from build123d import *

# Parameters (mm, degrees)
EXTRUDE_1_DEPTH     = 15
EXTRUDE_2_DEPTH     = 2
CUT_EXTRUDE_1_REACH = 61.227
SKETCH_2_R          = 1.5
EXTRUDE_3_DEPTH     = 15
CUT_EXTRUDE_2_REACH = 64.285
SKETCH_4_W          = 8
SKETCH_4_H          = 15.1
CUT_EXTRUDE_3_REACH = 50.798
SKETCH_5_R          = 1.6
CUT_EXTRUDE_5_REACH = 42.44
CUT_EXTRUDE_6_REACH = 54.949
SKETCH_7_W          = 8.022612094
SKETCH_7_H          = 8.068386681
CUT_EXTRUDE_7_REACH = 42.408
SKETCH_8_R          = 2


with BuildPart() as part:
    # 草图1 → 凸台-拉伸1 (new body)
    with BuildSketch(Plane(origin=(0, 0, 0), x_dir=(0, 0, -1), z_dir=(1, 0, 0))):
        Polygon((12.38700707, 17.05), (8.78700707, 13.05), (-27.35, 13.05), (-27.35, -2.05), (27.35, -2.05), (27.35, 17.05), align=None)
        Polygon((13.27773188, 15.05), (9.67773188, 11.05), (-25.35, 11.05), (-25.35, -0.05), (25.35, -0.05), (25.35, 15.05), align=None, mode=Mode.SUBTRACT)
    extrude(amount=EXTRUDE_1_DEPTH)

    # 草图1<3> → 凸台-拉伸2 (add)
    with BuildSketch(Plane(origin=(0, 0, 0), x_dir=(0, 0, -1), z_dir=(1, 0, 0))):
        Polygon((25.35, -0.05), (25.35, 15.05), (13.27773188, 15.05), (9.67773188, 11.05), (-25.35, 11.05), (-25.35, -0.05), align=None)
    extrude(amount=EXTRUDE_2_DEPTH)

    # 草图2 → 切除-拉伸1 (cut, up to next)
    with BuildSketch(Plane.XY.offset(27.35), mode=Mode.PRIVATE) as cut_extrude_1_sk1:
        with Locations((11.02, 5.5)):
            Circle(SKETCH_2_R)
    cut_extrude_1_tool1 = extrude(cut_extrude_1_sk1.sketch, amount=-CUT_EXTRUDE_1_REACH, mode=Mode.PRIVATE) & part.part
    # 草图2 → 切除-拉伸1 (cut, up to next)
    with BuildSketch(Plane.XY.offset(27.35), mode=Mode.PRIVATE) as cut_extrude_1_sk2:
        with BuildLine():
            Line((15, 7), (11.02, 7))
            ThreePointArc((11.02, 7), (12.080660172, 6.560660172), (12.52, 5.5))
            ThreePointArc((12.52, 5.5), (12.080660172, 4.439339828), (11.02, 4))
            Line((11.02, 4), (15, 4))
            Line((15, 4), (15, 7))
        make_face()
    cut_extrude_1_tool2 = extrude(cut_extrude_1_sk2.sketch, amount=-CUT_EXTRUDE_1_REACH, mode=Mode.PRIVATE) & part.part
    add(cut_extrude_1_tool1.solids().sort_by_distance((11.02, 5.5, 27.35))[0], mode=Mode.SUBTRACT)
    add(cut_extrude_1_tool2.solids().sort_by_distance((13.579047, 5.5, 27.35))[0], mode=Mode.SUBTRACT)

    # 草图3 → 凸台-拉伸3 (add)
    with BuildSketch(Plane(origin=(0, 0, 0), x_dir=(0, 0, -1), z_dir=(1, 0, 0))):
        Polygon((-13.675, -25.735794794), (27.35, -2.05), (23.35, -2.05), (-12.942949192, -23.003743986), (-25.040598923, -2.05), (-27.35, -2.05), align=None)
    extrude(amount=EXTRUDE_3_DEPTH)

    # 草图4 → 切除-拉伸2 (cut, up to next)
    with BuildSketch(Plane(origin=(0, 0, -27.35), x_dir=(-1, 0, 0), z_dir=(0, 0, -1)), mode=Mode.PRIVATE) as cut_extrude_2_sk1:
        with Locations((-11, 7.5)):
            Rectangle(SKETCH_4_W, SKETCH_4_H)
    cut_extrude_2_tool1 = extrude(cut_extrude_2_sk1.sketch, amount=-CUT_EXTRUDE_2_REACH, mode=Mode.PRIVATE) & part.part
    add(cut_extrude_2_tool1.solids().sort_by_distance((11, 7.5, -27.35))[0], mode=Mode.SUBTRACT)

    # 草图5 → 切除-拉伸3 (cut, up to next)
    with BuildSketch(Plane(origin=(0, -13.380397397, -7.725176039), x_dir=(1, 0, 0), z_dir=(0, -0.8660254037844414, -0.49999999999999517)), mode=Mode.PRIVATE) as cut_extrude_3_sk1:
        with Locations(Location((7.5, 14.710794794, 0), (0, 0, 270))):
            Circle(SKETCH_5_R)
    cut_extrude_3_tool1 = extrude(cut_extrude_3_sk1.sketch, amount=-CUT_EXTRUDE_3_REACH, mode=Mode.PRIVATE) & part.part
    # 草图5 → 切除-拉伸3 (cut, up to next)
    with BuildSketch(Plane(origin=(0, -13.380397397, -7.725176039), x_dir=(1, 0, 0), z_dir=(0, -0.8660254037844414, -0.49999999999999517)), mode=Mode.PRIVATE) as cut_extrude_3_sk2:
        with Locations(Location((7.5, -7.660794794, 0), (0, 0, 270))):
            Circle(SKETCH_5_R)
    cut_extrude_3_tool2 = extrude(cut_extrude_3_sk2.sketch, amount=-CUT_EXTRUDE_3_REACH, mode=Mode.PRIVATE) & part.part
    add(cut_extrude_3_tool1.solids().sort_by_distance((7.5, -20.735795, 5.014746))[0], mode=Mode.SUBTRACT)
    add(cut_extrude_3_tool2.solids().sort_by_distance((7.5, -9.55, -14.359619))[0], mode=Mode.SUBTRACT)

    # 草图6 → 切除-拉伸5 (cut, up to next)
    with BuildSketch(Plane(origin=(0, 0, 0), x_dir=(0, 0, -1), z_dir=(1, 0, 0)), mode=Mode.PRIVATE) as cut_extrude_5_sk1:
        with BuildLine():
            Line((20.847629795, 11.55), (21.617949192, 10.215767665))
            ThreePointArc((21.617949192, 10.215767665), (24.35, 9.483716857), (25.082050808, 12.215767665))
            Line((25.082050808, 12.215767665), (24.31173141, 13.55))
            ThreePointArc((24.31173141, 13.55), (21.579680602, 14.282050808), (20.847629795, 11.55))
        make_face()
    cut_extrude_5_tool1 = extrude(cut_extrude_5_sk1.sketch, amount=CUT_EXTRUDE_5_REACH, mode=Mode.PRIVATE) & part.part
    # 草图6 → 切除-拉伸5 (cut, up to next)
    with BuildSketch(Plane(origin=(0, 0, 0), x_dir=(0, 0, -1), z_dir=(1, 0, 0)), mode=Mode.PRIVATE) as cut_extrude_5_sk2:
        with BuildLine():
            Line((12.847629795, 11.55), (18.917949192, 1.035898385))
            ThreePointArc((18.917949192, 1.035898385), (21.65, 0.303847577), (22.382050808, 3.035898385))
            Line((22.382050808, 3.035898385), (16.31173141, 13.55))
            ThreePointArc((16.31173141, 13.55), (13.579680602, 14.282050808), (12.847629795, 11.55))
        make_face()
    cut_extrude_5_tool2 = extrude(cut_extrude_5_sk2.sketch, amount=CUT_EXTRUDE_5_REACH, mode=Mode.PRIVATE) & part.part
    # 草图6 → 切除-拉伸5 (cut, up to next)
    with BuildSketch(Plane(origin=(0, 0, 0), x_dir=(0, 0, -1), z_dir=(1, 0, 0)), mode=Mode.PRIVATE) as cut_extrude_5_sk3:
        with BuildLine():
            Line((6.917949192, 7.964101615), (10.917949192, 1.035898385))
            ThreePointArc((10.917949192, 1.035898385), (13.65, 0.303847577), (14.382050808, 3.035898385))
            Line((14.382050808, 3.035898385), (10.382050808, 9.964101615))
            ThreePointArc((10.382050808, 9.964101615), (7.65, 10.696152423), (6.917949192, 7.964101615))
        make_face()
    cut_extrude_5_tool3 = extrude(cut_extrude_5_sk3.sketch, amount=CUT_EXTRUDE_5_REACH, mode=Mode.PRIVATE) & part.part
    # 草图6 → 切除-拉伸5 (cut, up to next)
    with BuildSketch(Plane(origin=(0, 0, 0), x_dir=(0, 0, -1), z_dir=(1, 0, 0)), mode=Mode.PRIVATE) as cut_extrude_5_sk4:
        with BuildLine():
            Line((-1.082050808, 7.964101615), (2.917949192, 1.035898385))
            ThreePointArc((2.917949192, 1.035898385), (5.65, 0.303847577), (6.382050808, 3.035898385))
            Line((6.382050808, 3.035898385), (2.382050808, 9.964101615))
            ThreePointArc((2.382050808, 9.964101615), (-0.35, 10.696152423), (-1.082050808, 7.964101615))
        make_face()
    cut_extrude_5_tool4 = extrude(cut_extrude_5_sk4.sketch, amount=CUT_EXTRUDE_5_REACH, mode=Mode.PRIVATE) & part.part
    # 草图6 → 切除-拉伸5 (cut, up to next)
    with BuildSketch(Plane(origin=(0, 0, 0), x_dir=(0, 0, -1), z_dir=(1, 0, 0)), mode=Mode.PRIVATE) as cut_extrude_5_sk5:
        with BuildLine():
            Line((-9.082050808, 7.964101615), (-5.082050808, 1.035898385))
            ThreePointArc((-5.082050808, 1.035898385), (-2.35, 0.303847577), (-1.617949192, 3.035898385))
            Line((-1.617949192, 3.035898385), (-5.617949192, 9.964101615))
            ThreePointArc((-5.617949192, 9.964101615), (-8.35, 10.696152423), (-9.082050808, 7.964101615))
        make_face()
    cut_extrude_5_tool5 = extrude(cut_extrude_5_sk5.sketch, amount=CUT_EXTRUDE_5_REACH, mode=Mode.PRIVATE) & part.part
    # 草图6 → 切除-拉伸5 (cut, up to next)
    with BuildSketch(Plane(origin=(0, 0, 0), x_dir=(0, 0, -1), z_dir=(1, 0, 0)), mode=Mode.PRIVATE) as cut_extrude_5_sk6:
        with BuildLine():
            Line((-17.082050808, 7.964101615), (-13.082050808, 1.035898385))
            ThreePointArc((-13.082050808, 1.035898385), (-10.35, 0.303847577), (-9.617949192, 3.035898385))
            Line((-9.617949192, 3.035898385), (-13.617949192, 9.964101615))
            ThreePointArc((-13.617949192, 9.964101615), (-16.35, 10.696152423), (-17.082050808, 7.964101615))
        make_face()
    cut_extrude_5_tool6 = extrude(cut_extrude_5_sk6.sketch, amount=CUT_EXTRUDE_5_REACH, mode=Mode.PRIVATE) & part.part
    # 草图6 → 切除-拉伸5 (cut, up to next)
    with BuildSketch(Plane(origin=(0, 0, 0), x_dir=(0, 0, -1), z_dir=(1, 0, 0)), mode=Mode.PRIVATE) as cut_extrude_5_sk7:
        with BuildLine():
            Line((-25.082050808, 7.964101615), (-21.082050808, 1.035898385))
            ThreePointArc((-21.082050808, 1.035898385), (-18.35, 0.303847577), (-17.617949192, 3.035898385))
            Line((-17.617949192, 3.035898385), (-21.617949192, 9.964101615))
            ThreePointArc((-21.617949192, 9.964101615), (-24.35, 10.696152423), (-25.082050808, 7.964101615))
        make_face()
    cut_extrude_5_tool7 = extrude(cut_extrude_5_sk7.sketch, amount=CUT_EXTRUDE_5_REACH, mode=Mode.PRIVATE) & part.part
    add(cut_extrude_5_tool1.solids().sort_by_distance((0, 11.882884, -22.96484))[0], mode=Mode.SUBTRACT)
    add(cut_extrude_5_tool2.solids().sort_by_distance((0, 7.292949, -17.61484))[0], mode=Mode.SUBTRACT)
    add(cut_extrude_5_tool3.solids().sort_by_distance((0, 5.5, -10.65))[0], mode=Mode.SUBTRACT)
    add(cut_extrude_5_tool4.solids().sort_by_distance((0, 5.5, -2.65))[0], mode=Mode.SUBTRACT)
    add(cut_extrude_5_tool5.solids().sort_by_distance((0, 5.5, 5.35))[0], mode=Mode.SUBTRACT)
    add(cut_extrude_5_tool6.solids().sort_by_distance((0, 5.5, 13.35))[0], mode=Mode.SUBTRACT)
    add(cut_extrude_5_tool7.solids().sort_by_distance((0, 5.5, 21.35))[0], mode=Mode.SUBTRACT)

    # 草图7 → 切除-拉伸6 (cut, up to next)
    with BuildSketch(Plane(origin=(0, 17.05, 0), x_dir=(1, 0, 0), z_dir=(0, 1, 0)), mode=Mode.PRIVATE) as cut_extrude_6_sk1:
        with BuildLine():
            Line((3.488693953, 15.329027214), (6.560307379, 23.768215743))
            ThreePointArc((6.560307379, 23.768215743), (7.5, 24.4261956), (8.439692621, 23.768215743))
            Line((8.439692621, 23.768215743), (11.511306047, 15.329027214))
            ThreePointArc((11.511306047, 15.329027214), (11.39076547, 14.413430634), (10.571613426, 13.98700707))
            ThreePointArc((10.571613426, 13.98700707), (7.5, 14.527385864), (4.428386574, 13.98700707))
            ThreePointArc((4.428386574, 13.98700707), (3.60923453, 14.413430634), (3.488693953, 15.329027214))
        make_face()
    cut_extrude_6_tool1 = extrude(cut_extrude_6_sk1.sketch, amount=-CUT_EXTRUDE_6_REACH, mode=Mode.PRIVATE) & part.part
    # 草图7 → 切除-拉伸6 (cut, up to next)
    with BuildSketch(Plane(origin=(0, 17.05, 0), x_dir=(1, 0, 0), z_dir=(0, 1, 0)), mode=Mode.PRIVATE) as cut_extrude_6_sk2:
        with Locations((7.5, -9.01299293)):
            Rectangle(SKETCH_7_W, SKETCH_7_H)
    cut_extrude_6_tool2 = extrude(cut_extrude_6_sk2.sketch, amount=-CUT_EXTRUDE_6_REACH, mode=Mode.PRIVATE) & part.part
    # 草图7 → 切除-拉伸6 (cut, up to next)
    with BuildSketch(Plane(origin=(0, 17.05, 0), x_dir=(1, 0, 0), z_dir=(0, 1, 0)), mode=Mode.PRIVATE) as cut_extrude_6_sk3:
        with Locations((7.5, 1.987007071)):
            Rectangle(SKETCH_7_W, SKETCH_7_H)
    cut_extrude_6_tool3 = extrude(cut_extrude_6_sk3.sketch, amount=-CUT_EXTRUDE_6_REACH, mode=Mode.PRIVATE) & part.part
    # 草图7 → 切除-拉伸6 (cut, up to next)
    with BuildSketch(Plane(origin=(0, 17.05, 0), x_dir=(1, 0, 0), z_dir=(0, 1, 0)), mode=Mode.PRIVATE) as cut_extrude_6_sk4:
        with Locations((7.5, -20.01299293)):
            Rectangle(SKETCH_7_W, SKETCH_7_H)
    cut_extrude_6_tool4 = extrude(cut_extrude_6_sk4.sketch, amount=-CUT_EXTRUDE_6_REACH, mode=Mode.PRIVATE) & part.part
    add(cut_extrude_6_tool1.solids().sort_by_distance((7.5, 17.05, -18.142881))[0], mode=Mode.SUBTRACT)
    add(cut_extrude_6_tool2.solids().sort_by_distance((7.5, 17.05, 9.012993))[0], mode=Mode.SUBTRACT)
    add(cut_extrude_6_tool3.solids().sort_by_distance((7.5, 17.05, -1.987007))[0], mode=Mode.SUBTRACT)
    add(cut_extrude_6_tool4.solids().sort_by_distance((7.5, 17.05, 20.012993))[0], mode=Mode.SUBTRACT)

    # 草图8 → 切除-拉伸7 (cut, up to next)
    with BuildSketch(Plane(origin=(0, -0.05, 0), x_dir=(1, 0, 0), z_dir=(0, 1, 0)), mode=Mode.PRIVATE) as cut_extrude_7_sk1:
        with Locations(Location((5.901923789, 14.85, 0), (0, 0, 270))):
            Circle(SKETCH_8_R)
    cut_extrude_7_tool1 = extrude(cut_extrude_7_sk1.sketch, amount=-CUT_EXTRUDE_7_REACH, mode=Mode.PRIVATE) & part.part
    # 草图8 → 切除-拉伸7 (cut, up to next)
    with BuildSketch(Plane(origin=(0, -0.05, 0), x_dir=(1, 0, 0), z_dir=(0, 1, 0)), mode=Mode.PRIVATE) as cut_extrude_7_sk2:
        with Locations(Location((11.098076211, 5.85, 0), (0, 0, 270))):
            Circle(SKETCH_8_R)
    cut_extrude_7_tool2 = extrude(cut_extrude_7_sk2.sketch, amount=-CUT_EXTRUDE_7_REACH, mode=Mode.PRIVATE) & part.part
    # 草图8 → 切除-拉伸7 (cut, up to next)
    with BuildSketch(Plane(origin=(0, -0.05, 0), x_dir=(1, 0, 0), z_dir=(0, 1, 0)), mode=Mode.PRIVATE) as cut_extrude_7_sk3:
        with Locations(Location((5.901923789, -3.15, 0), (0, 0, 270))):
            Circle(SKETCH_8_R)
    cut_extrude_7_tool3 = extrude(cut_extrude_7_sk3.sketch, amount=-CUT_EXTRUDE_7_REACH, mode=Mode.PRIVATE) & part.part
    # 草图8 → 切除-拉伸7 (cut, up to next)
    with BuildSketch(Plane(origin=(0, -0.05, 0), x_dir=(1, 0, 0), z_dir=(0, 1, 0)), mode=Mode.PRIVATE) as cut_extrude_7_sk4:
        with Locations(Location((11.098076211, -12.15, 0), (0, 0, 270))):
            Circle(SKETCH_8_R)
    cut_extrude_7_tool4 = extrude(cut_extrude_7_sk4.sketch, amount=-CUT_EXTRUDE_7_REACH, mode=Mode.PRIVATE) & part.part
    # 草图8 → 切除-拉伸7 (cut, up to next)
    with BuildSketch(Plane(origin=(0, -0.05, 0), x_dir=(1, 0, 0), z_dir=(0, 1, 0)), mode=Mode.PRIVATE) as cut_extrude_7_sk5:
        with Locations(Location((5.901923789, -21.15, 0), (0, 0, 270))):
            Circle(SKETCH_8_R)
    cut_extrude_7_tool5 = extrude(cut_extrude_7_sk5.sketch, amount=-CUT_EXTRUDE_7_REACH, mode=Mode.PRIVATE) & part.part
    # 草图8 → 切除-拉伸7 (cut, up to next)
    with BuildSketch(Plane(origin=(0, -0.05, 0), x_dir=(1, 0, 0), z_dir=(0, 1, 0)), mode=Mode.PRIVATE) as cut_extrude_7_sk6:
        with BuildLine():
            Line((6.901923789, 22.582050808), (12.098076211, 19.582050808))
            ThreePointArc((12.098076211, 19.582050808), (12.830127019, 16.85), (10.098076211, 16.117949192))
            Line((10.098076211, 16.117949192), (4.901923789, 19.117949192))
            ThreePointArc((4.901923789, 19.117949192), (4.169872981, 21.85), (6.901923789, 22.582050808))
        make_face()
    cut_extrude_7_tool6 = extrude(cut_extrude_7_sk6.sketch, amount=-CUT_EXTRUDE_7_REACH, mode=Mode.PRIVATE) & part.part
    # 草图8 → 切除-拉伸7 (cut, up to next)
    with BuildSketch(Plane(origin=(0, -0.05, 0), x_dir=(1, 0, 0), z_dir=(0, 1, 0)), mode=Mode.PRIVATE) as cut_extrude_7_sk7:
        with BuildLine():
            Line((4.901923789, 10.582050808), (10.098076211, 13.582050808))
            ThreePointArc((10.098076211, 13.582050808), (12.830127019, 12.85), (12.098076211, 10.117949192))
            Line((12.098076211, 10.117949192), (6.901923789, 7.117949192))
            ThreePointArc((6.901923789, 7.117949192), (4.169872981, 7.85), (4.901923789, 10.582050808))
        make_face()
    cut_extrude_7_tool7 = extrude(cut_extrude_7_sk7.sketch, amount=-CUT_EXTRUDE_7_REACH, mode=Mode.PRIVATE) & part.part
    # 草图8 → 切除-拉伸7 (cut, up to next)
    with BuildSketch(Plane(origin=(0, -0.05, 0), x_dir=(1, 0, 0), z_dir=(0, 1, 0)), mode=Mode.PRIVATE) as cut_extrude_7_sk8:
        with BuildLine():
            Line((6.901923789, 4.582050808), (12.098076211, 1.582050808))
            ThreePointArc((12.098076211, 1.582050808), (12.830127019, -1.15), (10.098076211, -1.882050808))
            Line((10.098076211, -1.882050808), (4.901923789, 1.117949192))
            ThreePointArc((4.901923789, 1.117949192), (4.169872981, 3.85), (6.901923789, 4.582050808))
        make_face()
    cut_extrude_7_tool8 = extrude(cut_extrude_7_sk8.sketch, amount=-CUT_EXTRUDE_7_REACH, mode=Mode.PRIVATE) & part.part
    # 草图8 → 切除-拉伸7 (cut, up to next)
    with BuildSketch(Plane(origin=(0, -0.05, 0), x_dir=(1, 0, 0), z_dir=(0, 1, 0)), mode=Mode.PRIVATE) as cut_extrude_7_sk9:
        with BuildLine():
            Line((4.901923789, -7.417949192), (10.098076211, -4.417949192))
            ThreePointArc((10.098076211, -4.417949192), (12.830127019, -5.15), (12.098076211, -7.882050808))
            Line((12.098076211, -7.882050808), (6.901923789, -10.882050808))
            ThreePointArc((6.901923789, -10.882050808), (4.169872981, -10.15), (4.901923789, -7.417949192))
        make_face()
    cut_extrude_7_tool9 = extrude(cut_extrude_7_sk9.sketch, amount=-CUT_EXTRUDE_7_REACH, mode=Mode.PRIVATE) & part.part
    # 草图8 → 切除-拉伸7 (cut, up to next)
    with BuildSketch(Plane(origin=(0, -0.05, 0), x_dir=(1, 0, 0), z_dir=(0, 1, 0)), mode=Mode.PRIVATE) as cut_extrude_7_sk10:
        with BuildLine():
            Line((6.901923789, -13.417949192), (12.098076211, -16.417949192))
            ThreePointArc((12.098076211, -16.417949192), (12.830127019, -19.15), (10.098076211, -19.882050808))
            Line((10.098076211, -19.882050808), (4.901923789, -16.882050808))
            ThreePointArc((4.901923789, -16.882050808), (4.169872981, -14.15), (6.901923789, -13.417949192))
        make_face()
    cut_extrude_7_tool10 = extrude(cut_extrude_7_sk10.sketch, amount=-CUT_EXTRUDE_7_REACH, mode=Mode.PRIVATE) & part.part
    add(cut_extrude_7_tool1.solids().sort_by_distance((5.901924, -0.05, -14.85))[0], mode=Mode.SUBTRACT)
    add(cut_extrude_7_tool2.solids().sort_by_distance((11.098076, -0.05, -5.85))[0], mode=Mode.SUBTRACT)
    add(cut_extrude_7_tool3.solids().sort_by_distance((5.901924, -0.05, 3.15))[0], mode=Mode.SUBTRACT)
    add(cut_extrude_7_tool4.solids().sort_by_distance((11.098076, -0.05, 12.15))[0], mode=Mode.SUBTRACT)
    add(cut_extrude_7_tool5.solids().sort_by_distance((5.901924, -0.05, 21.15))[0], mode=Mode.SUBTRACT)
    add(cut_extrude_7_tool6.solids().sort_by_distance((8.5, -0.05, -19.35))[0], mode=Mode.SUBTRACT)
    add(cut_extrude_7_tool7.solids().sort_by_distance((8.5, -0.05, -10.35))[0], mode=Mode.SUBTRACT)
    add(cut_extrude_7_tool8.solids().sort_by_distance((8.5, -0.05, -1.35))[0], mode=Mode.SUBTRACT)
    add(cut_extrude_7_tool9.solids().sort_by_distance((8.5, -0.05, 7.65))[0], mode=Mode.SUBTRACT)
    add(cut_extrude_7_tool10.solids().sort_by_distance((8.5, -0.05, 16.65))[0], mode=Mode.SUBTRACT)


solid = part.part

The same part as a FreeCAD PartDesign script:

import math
import FreeCAD as App
import Part
import Sketcher

V = App.Vector
Q = App.Units.Quantity


def add_polygon(sketch, points):
    """Adds a closed chain of lines whose ends are joined by coincident constraints."""
    first, n = sketch.GeometryCount, len(points)
    for a, b in zip(points, points[1:] + points[:1]):
        sketch.addGeometry(Part.LineSegment(App.Vector(*a, 0), App.Vector(*b, 0)), False)
    for i in range(n):
        sketch.addConstraint(Sketcher.Constraint("Coincident", first + i, 2, first + (i + 1) % n, 1))

doc = App.newDocument("Part")
body = doc.addObject("PartDesign::Body", "Body")

# Sketch on YZ plane
sketch1 = doc.addObject("Sketcher::SketchObject", "Sketch")
body.addObject(sketch1)
sketch1.AttachmentSupport = (doc.YZ_Plane, [""])
sketch1.MapMode = "FlatFace"
add_polygon(sketch1, [(17, -12), (13, -9), (13, 27), (-2, 27), (-2, -27), (17, -27)])  # lines 0-5
add_polygon(sketch1, [(11, -10), (15, -13), (15, -25), (0, -25), (0, 25), (11, 25)])  # lines 6-11
sketch1.addConstraint([
    Sketcher.Constraint("Vertical", 1),
    Sketcher.Constraint("Horizontal", 2),
    Sketcher.Constraint("Vertical", 3),
    Sketcher.Constraint("Horizontal", 4),
    Sketcher.Constraint("Vertical", 5),
    Sketcher.Constraint("Vertical", 7),
    Sketcher.Constraint("Horizontal", 8),
    Sketcher.Constraint("Vertical", 9),
    Sketcher.Constraint("Horizontal", 10),
    Sketcher.Constraint("Vertical", 11),
    Sketcher.Constraint("Parallel", 0, 6),
    Sketcher.Constraint("Equal", 2, 8),
    Sketcher.Constraint("Equal", 0, 6),
    Sketcher.Constraint("DistanceX", 2, 2, 2, 1, Q("15.1 mm")),
    Sketcher.Constraint("DistanceX", 4, 1, 4, 2, Q("19.1 mm")),
    Sketcher.Constraint("DistanceY", 3, 2, 3, 1, Q("54.7 mm")),
    Sketcher.Constraint("DistanceY", 9, 1, 9, 2, Q("50.7 mm")),
    Sketcher.Constraint("DistanceX", 6, 2, 5, 2, Q("2 mm")),
    Sketcher.Constraint("DistanceY", 4, 2, 7, 2, Q("2 mm")),
    Sketcher.Constraint("DistanceY", 5, 2, 0, 2, Q("3.6 mm")),
    Sketcher.Constraint("DistanceX", -1, 1, 0, 2, Q("13.05 mm")),
    Sketcher.Constraint("DistanceY", -1, 1, 1, 2, Q("27.35 mm")),
    Sketcher.Constraint("DistanceY", 7, 2, 7, 1, Q("12.072268 mm")),
    Sketcher.Constraint("DistanceY", 1, 1, 1, 2, Q("36.137007 mm")),
])
pad1 = doc.addObject("PartDesign::Pad", "Pad")
body.addObject(pad1)
pad1.Profile = sketch1
pad1.Length = 15

# Sketch on YZ plane
sketch2 = doc.addObject("Sketcher::SketchObject", "Sketch001")
body.addObject(sketch2)
sketch2.AttachmentSupport = (doc.YZ_Plane, [""])
sketch2.MapMode = "FlatFace"
add_polygon(sketch2, [(0, -25), (15, -25), (15, -13), (11, -10), (11, 25), (0, 25)])  # lines 0-5
sketch2.addConstraint([
    Sketcher.Constraint("Horizontal", 0),
    Sketcher.Constraint("Vertical", 1),
    Sketcher.Constraint("Vertical", 3),
    Sketcher.Constraint("Horizontal", 4),
    Sketcher.Constraint("Vertical", 5),
    Sketcher.Constraint("DistanceX", 0, 1, 0, 2, Q("15.1 mm")),
    Sketcher.Constraint("DistanceX", 4, 2, 4, 1, Q("11.1 mm")),
    Sketcher.Constraint("DistanceY", 5, 2, 5, 1, Q("50.7 mm")),
    Sketcher.Constraint("DistanceY", 1, 2, 2, 2, Q("3.6 mm")),
    Sketcher.Constraint("DistanceX", -1, 1, 0, 2, Q("15.05 mm")),
    Sketcher.Constraint("DistanceY", 0, 2, -1, 1, Q("25.35 mm")),
    Sketcher.Constraint("DistanceY", 1, 1, 1, 2, Q("12.072268 mm")),
])
pad2 = doc.addObject("PartDesign::Pad", "Pad001")
body.addObject(pad2)
pad2.Profile = sketch2
pad2.Length = 2

# Sketch on XY plane
sketch3 = doc.addObject("Sketcher::SketchObject", "Sketch002")
body.addObject(sketch3)
sketch3.AttachmentSupport = (doc.XY_Plane, [""])
sketch3.MapMode = "FlatFace"
sketch3.AttachmentOffset = App.Placement(V(0, 0, 27.35), App.Rotation())
sketch3.addGeometry(Part.Circle(V(11, 5.5, 0), V(0, 0, 1), 1.5), False)
sketch3.addConstraint([
    Sketcher.Constraint("Diameter", 0, Q("3 mm")),
    Sketcher.Constraint("DistanceY", -1, 1, 0, 3, Q("5.5 mm")),
    Sketcher.Constraint("DistanceX", -1, 1, 0, 3, Q("11.02 mm")),
])
pocket1 = doc.addObject("PartDesign::Pocket", "Pocket")
body.addObject(pocket1)
pocket1.Profile = sketch3
pocket1.Type = "UpToFirst"

# Sketch on XY plane
sketch4 = doc.addObject("Sketcher::SketchObject", "Sketch003")
body.addObject(sketch4)
sketch4.AttachmentSupport = (doc.XY_Plane, [""])
sketch4.MapMode = "FlatFace"
sketch4.AttachmentOffset = App.Placement(V(0, 0, 27.35), App.Rotation())
sketch4.addGeometry([
    Part.LineSegment(V(15, 7, 0), V(11, 7, 0)),  # 0
    Part.ArcOfCircle(Part.Circle(V(11, 5.5, 0), V(0, 0, 1), 1.5), math.radians(0), math.radians(90)),  # 1
    Part.ArcOfCircle(Part.Circle(V(11, 5.5, 0), V(0, 0, 1), 1.5), math.radians(-90), math.radians(0)),  # 2
    Part.LineSegment(V(11, 4, 0), V(15, 4, 0)),  # 3
    Part.LineSegment(V(15, 4, 0), V(15, 7, 0)),  # 4
], False)
sketch4.addConstraint([
    Sketcher.Constraint("Tangent", 0, 2, 1, 2),
    Sketcher.Constraint("Tangent", 1, 1, 2, 2),
    Sketcher.Constraint("Tangent", 2, 1, 3, 1),
    Sketcher.Constraint("Coincident", 3, 2, 4, 1),
    Sketcher.Constraint("Coincident", 4, 2, 0, 1),
    Sketcher.Constraint("Horizontal", 0),
    Sketcher.Constraint("Horizontal", 3),
    Sketcher.Constraint("Vertical", 4),
    Sketcher.Constraint("Equal", 1, 2),
    Sketcher.Constraint("Horizontal", 2, 3, 1, 1),
    Sketcher.Constraint("Radius", 1, Q("1.5 mm")),
    Sketcher.Constraint("DistanceY", -1, 1, 0, 2, Q("7 mm")),
    Sketcher.Constraint("DistanceX", -1, 1, 3, 2, Q("15 mm")),
    Sketcher.Constraint("DistanceX", 0, 2, 0, 1, Q("3.98 mm")),
])
pocket2 = doc.addObject("PartDesign::Pocket", "Pocket001")
body.addObject(pocket2)
pocket2.Profile = sketch4
pocket2.Type = "UpToFirst"

# Sketch on YZ plane
sketch5 = doc.addObject("Sketcher::SketchObject", "Sketch004")
body.addObject(sketch5)
sketch5.AttachmentSupport = (doc.YZ_Plane, [""])
sketch5.MapMode = "FlatFace"
add_polygon(sketch5, [(-25.7, 13.7), (-2, -27.4), (-2, -23.4), (-23, 12.9), (-2, 25), (-2, 27.4)])  # lines 0-5
sketch5.addConstraint([
    Sketcher.Constraint("Vertical", 1),
    Sketcher.Constraint("Vertical", 4),
    Sketcher.Constraint("Symmetric", 0, 2, 4, 2, -1),
    Sketcher.Constraint("Parallel", 0, 2),
    Sketcher.Constraint("Perpendicular", 2, 3),
    Sketcher.Constraint("Parallel", 3, 5),
    Sketcher.Constraint("DistanceY", 1, 1, 1, 2, Q("4 mm")),
    Sketcher.Constraint("Angle", 0, Q("-60 deg")),
    Sketcher.Constraint("DistanceY", 1, 2, 4, 2, Q("50.7 mm")),
    Sketcher.Constraint("DistanceX", 0, 2, -1, 1, Q("2.05 mm")),
    Sketcher.Constraint("DistanceY", 4, 1, 4, 2, Q("2.309401 mm")),
])
pad3 = doc.addObject("PartDesign::Pad", "Pad002")
body.addObject(pad3)
pad3.Profile = sketch5
pad3.Length = 15

# Sketch on XY plane
sketch6 = doc.addObject("Sketcher::SketchObject", "Sketch005")
body.addObject(sketch6)
sketch6.AttachmentSupport = (doc.XY_Plane, [""])
sketch6.MapMode = "FlatFace"
sketch6.AttachmentOffset = App.Placement(V(0, 0, -27.35), App.Rotation())
add_polygon(sketch6, [(15, 15), (15, 0), (7, 0), (7, 15)])  # lines 0-3
sketch6.addConstraint([
    Sketcher.Constraint("Vertical", 0),
    Sketcher.Constraint("Horizontal", 1),
    Sketcher.Constraint("Vertical", 2),
    Sketcher.Constraint("Horizontal", 3),
    Sketcher.Constraint("DistanceX", 1, 2, 1, 1, Q("8 mm")),
    Sketcher.Constraint("DistanceY", 0, 2, 0, 1, Q("15.1 mm")),
    Sketcher.Constraint("DistanceX", -1, 1, 0, 2, Q("15 mm")),
    Sketcher.Constraint("DistanceY", 0, 2, -1, 1, Q("0.05 mm")),
])
pocket3 = doc.addObject("PartDesign::Pocket", "Pocket002")
body.addObject(pocket3)
pocket3.Profile = sketch6
pocket3.Type = "UpToFirst"
pocket3.Reversed = True

# Sketch on an angled plane
sketch7 = doc.addObject("Sketcher::SketchObject", "Sketch006")
body.addObject(sketch7)
sketch7.Placement = App.Placement(V(0, -13.380397, -7.725176), App.Rotation(V(1, 0, 0), V(0, -0.5, 0.866025404), V(0, -0.866025404, -0.5), "ZXY"))
sketch7.addGeometry(Part.Circle(V(7.5, 14.7, 0), V(0, 0, 1), 1.6), False)
sketch7.addConstraint([
    Sketcher.Constraint("Diameter", 0, Q("3.2 mm")),
    Sketcher.Constraint("DistanceX", -1, 1, 0, 3, Q("7.5 mm")),
    Sketcher.Constraint("DistanceY", -1, 1, 0, 3, Q("14.710795 mm")),
])
pocket4 = doc.addObject("PartDesign::Pocket", "Pocket003")
body.addObject(pocket4)
pocket4.Profile = sketch7
pocket4.Type = "UpToFirst"

# Sketch on an angled plane
sketch8 = doc.addObject("Sketcher::SketchObject", "Sketch007")
body.addObject(sketch8)
sketch8.Placement = App.Placement(V(0, -13.380397, -7.725176), App.Rotation(V(1, 0, 0), V(0, -0.5, 0.866025404), V(0, -0.866025404, -0.5), "ZXY"))
sketch8.addGeometry(Part.Circle(V(7.5, -7.7, 0), V(0, 0, 1), 1.6), False)
sketch8.addConstraint([
    Sketcher.Constraint("Diameter", 0, Q("3.2 mm")),
    Sketcher.Constraint("DistanceX", -1, 1, 0, 3, Q("7.5 mm")),
    Sketcher.Constraint("DistanceY", 0, 3, -1, 1, Q("7.660795 mm")),
])
pocket5 = doc.addObject("PartDesign::Pocket", "Pocket004")
body.addObject(pocket5)
pocket5.Profile = sketch8
pocket5.Type = "UpToFirst"

# Sketch on YZ plane
sketch9 = doc.addObject("Sketcher::SketchObject", "Sketch008")
body.addObject(sketch9)
sketch9.AttachmentSupport = (doc.YZ_Plane, [""])
sketch9.MapMode = "FlatFace"
sketch9.addGeometry([
    Part.LineSegment(V(11.6, -20.8, 0), V(10.2, -21.6, 0)),
    Part.ArcOfCircle(Part.Circle(V(11.2, -23.4, 0), V(0, 0, 1), 2), math.radians(120), math.radians(300)),
    Part.LineSegment(V(12.2, -25.1, 0), V(13.6, -24.3, 0)),
    Part.ArcOfCircle(Part.Circle(V(12.6, -22.6, 0), V(0, 0, 1), 2), math.radians(-60), math.radians(120)),
], False)
sketch9.addConstraint([
    Sketcher.Constraint("Tangent", 0, 2, 1, 1),
    Sketcher.Constraint("Tangent", 1, 2, 2, 1),
    Sketcher.Constraint("Tangent", 2, 2, 3, 1),
    Sketcher.Constraint("Tangent", 3, 2, 0, 1),
    Sketcher.Constraint("Equal", 1, 3),
    Sketcher.Constraint("Radius", 1, Q("2 mm")),
    Sketcher.Constraint("Angle", 0, Q("-150 deg")),
    Sketcher.Constraint("DistanceY", 1, 3, -1, 1, Q("23.35 mm")),
    Sketcher.Constraint("DistanceX", -1, 1, 3, 3, Q("12.55 mm")),
    Sketcher.Constraint("Distance", 0, Q("1.540639 mm")),
])
pocket6 = doc.addObject("PartDesign::Pocket", "Pocket005")
body.addObject(pocket6)
pocket6.Profile = sketch9
pocket6.Type = "UpToFirst"
pocket6.Reversed = True

# Sketch on YZ plane
sketch10 = doc.addObject("Sketcher::SketchObject", "Sketch009")
body.addObject(sketch10)
sketch10.AttachmentSupport = (doc.YZ_Plane, [""])
sketch10.MapMode = "FlatFace"
sketch10.addGeometry([
    Part.LineSegment(V(11.6, -12.8, 0), V(1, -18.9, 0)),
    Part.ArcOfCircle(Part.Circle(V(2, -20.6, 0), V(0, 0, 1), 2), math.radians(120), math.radians(300)),
    Part.LineSegment(V(3, -22.4, 0), V(13.6, -16.3, 0)),
    Part.ArcOfCircle(Part.Circle(V(12.6, -14.6, 0), V(0, 0, 1), 2), math.radians(-60), math.radians(120)),
], False)
sketch10.addConstraint([
    Sketcher.Constraint("Tangent", 0, 2, 1, 1),
    Sketcher.Constraint("Tangent", 1, 2, 2, 1),
    Sketcher.Constraint("Tangent", 2, 2, 3, 1),
    Sketcher.Constraint("Tangent", 3, 2, 0, 1),
    Sketcher.Constraint("Equal", 1, 3),
    Sketcher.Constraint("Radius", 1, Q("2 mm")),
    Sketcher.Constraint("Angle", 0, Q("-150 deg")),
    Sketcher.Constraint("DistanceY", 1, 3, -1, 1, Q("20.65 mm")),
    Sketcher.Constraint("DistanceX", -1, 1, 3, 3, Q("12.55 mm")),
    Sketcher.Constraint("DistanceX", -1, 1, 1, 3, Q("2.035898 mm")),
])
pocket7 = doc.addObject("PartDesign::Pocket", "Pocket006")
body.addObject(pocket7)
pocket7.Profile = sketch10
pocket7.Type = "UpToFirst"
pocket7.Reversed = True

# Sketch on YZ plane
sketch11 = doc.addObject("Sketcher::SketchObject", "Sketch010")
body.addObject(sketch11)
sketch11.AttachmentSupport = (doc.YZ_Plane, [""])
sketch11.MapMode = "FlatFace"
sketch11.addGeometry([
    Part.LineSegment(V(8, -6.9, 0), V(1, -10.9, 0)),
    Part.ArcOfCircle(Part.Circle(V(2, -12.7, 0), V(0, 0, 1), 2), math.radians(120), math.radians(300)),
    Part.LineSegment(V(3, -14.4, 0), V(10, -10.4, 0)),
    Part.ArcOfCircle(Part.Circle(V(9, -8.7, 0), V(0, 0, 1), 2), math.radians(-60), math.radians(120)),
], False)
sketch11.addConstraint([
    Sketcher.Constraint("Tangent", 0, 2, 1, 1),
    Sketcher.Constraint("Tangent", 1, 2, 2, 1),
    Sketcher.Constraint("Tangent", 2, 2, 3, 1),
    Sketcher.Constraint("Tangent", 3, 2, 0, 1),
    Sketcher.Constraint("Equal", 1, 3),
    Sketcher.Constraint("Radius", 1, Q("2 mm")),
    Sketcher.Constraint("Angle", 0, Q("-150 deg")),
    Sketcher.Constraint("Distance", 0, Q("8 mm")),
    Sketcher.Constraint("DistanceY", 1, 3, -1, 1, Q("12.65 mm")),
    Sketcher.Constraint("DistanceX", -1, 1, 1, 3, Q("2.035898 mm")),
])
pocket8 = doc.addObject("PartDesign::Pocket", "Pocket007")
body.addObject(pocket8)
pocket8.Profile = sketch11
pocket8.Type = "UpToFirst"
pocket8.Reversed = True

# Sketch on YZ plane
sketch12 = doc.addObject("Sketcher::SketchObject", "Sketch011")
body.addObject(sketch12)
sketch12.AttachmentSupport = (doc.YZ_Plane, [""])
sketch12.MapMode = "FlatFace"
sketch12.addGeometry([
    Part.LineSegment(V(8, 1.1, 0), V(1, -2.9, 0)),
    Part.ArcOfCircle(Part.Circle(V(2, -4.7, 0), V(0, 0, 1), 2), math.radians(120), math.radians(300)),
    Part.LineSegment(V(3, -6.4, 0), V(10, -2.4, 0)),
    Part.ArcOfCircle(Part.Circle(V(9, -0.7, 0), V(0, 0, 1), 2), math.radians(-60), math.radians(120)),
], False)
sketch12.addConstraint([
    Sketcher.Constraint("Tangent", 0, 2, 1, 1),
    Sketcher.Constraint("Tangent", 1, 2, 2, 1),
    Sketcher.Constraint("Tangent", 2, 2, 3, 1),
    Sketcher.Constraint("Tangent", 3, 2, 0, 1),
    Sketcher.Constraint("Equal", 1, 3),
    Sketcher.Constraint("Radius", 1, Q("2 mm")),
    Sketcher.Constraint("Angle", 0, Q("-150 deg")),
    Sketcher.Constraint("Distance", 0, Q("8 mm")),
    Sketcher.Constraint("DistanceY", 1, 3, -1, 1, Q("4.65 mm")),
    Sketcher.Constraint("DistanceX", -1, 1, 1, 3, Q("2.035898 mm")),
])
pocket9 = doc.addObject("PartDesign::Pocket", "Pocket008")
body.addObject(pocket9)
pocket9.Profile = sketch12
pocket9.Type = "UpToFirst"
pocket9.Reversed = True

# Sketch on YZ plane
sketch13 = doc.addObject("Sketcher::SketchObject", "Sketch012")
body.addObject(sketch13)
sketch13.AttachmentSupport = (doc.YZ_Plane, [""])
sketch13.MapMode = "FlatFace"
sketch13.addGeometry([
    Part.LineSegment(V(8, 9.1, 0), V(1, 5.1, 0)),
    Part.ArcOfCircle(Part.Circle(V(2, 3.4, 0), V(0, 0, 1), 2), math.radians(120), math.radians(300)),
    Part.LineSegment(V(3, 1.6, 0), V(10, 5.6, 0)),
    Part.ArcOfCircle(Part.Circle(V(9, 7.3, 0), V(0, 0, 1), 2), math.radians(-60), math.radians(120)),
], False)
sketch13.addConstraint([
    Sketcher.Constraint("Tangent", 0, 2, 1, 1),
    Sketcher.Constraint("Tangent", 1, 2, 2, 1),
    Sketcher.Constraint("Tangent", 2, 2, 3, 1),
    Sketcher.Constraint("Tangent", 3, 2, 0, 1),
    Sketcher.Constraint("Equal", 1, 3),
    Sketcher.Constraint("Radius", 1, Q("2 mm")),
    Sketcher.Constraint("Angle", 0, Q("-150 deg")),
    Sketcher.Constraint("Distance", 0, Q("8 mm")),
    Sketcher.Constraint("DistanceY", -1, 1, 1, 3, Q("3.35 mm")),
    Sketcher.Constraint("DistanceX", -1, 1, 1, 3, Q("2.035898 mm")),
])
pocket10 = doc.addObject("PartDesign::Pocket", "Pocket009")
body.addObject(pocket10)
pocket10.Profile = sketch13
pocket10.Type = "UpToFirst"
pocket10.Reversed = True

# Sketch on YZ plane
sketch14 = doc.addObject("Sketcher::SketchObject", "Sketch013")
body.addObject(sketch14)
sketch14.AttachmentSupport = (doc.YZ_Plane, [""])
sketch14.MapMode = "FlatFace"
sketch14.addGeometry([
    Part.LineSegment(V(8, 17.1, 0), V(1, 13.1, 0)),
    Part.ArcOfCircle(Part.Circle(V(2, 11.3, 0), V(0, 0, 1), 2), math.radians(120), math.radians(300)),
    Part.LineSegment(V(3, 9.6, 0), V(10, 13.6, 0)),
    Part.ArcOfCircle(Part.Circle(V(9, 15.3, 0), V(0, 0, 1), 2), math.radians(-60), math.radians(120)),
], False)
sketch14.addConstraint([
    Sketcher.Constraint("Tangent", 0, 2, 1, 1),
    Sketcher.Constraint("Tangent", 1, 2, 2, 1),
    Sketcher.Constraint("Tangent", 2, 2, 3, 1),
    Sketcher.Constraint("Tangent", 3, 2, 0, 1),
    Sketcher.Constraint("Equal", 1, 3),
    Sketcher.Constraint("Radius", 1, Q("2 mm")),
    Sketcher.Constraint("Angle", 0, Q("-150 deg")),
    Sketcher.Constraint("Distance", 0, Q("8 mm")),
    Sketcher.Constraint("DistanceY", -1, 1, 1, 3, Q("11.35 mm")),
    Sketcher.Constraint("DistanceX", -1, 1, 1, 3, Q("2.035898 mm")),
])
pocket11 = doc.addObject("PartDesign::Pocket", "Pocket010")
body.addObject(pocket11)
pocket11.Profile = sketch14
pocket11.Type = "UpToFirst"
pocket11.Reversed = True

# Sketch on YZ plane
sketch15 = doc.addObject("Sketcher::SketchObject", "Sketch014")
body.addObject(sketch15)
sketch15.AttachmentSupport = (doc.YZ_Plane, [""])
sketch15.MapMode = "FlatFace"
sketch15.addGeometry([
    Part.LineSegment(V(8, 25.1, 0), V(1, 21.1, 0)),
    Part.ArcOfCircle(Part.Circle(V(2, 19.4, 0), V(0, 0, 1), 2), math.radians(120), math.radians(300)),
    Part.LineSegment(V(3, 17.6, 0), V(10, 21.6, 0)),
    Part.ArcOfCircle(Part.Circle(V(9, 23.4, 0), V(0, 0, 1), 2), math.radians(-60), math.radians(120)),
], False)
sketch15.addConstraint([
    Sketcher.Constraint("Tangent", 0, 2, 1, 1),
    Sketcher.Constraint("Tangent", 1, 2, 2, 1),
    Sketcher.Constraint("Tangent", 2, 2, 3, 1),
    Sketcher.Constraint("Tangent", 3, 2, 0, 1),
    Sketcher.Constraint("Equal", 1, 3),
    Sketcher.Constraint("Radius", 1, Q("2 mm")),
    Sketcher.Constraint("Angle", 0, Q("-150 deg")),
    Sketcher.Constraint("Distance", 0, Q("8 mm")),
    Sketcher.Constraint("DistanceY", -1, 1, 1, 3, Q("19.35 mm")),
    Sketcher.Constraint("DistanceX", -1, 1, 1, 3, Q("2.035898 mm")),
])
pocket12 = doc.addObject("PartDesign::Pocket", "Pocket011")
body.addObject(pocket12)
pocket12.Profile = sketch15
pocket12.Type = "UpToFirst"
pocket12.Reversed = True

# Sketch on XZ plane
sketch16 = doc.addObject("Sketcher::SketchObject", "Sketch015")
body.addObject(sketch16)
sketch16.AttachmentSupport = (doc.XZ_Plane, [""])
sketch16.MapMode = "FlatFace"
sketch16.AttachmentOffset = App.Placement(V(0, 0, -17.05), App.Rotation())
sketch16.addGeometry([
    Part.LineSegment(V(6.6, -23.8, 0), V(3.5, -15.3, 0)),  # 0
    Part.ArcOfCircle(Part.Circle(V(4.4, -15, 0), V(0, 0, 1), 1), math.radians(90), math.radians(200)),  # 1
    Part.ArcOfCircle(Part.Circle(V(7.5, -5.5, 0), V(0, 0, 1), 9), math.radians(-110), math.radians(-70)),  # 2
    Part.ArcOfCircle(Part.Circle(V(10.6, -15, 0), V(0, 0, 1), 1), math.radians(-20), math.radians(90)),  # 3
    Part.LineSegment(V(11.5, -15.3, 0), V(8.4, -23.8, 0)),  # 4
    Part.ArcOfCircle(Part.Circle(V(7.5, -23.4, 0), V(0, 0, 1), 1), math.radians(-160), math.radians(-20)),  # 5
], False)
sketch16.addConstraint([
    Sketcher.Constraint("Tangent", 0, 2, 1, 2),
    Sketcher.Constraint("Coincident", 1, 1, 2, 1),
    Sketcher.Constraint("Coincident", 2, 2, 3, 2),
    Sketcher.Constraint("Tangent", 3, 1, 4, 1),
    Sketcher.Constraint("Tangent", 4, 2, 5, 2),
    Sketcher.Constraint("Tangent", 5, 1, 0, 1),
    Sketcher.Constraint("Equal", 1, 3),
    Sketcher.Constraint("Equal", 3, 5),
    Sketcher.Constraint("Horizontal", 1, 3, 3, 3),
    Sketcher.Constraint("Horizontal", 0, 2, 3, 1),
    Sketcher.Constraint("Vertical", 2, 3, 5, 3),
    Sketcher.Constraint("Vertical", 3, 3, 2, 2),
    Sketcher.Constraint("Radius", 1, Q("1 mm")),
    Sketcher.Constraint("Radius", 2, Q("9 mm")),
    Sketcher.Constraint("Angle", 0, Q("110 deg")),
    Sketcher.Constraint("DistanceX", -1, 1, 2, 3, Q("7.5 mm")),
    Sketcher.Constraint("DistanceX", 0, 2, 4, 2, Q("4.950999 mm")),
    Sketcher.Constraint("DistanceY", 1, 3, -1, 1, Q("14.987007 mm")),
])
pocket13 = doc.addObject("PartDesign::Pocket", "Pocket012")
body.addObject(pocket13)
pocket13.Profile = sketch16
pocket13.Type = "UpToFirst"
pocket13.Reversed = True

# Sketch on XZ plane
sketch17 = doc.addObject("Sketcher::SketchObject", "Sketch016")
body.addObject(sketch17)
sketch17.AttachmentSupport = (doc.XZ_Plane, [""])
sketch17.MapMode = "FlatFace"
sketch17.AttachmentOffset = App.Placement(V(0, 0, -17.05), App.Rotation())
add_polygon(sketch17, [(3, 5), (3, 13), (12, 13), (12, 5)])  # lines 0-3
sketch17.addConstraint([
    Sketcher.Constraint("Vertical", 0),
    Sketcher.Constraint("Horizontal", 1),
    Sketcher.Constraint("Vertical", 2),
    Sketcher.Constraint("Horizontal", 3),
    Sketcher.Constraint("DistanceY", -1, 1, 2, 2, Q("4.9788 mm")),
    Sketcher.Constraint("DistanceX", 1, 1, 1, 2, Q("8.022612 mm")),
    Sketcher.Constraint("DistanceY", 0, 1, 0, 2, Q("8.068387 mm")),
    Sketcher.Constraint("DistanceX", -1, 1, 0, 2, Q("3.488694 mm")),
])
pocket14 = doc.addObject("PartDesign::Pocket", "Pocket013")
body.addObject(pocket14)
pocket14.Profile = sketch17
pocket14.Length = 6
pocket14.Reversed = True

# Sketch on XZ plane
sketch18 = doc.addObject("Sketcher::SketchObject", "Sketch017")
body.addObject(sketch18)
sketch18.AttachmentSupport = (doc.XZ_Plane, [""])
sketch18.MapMode = "FlatFace"
sketch18.AttachmentOffset = App.Placement(V(0, 0, -17.05), App.Rotation())
add_polygon(sketch18, [(3, -6), (3, 2), (12, 2), (12, -6)])  # lines 0-3
sketch18.addConstraint([
    Sketcher.Constraint("Vertical", 0),
    Sketcher.Constraint("Horizontal", 1),
    Sketcher.Constraint("Vertical", 2),
    Sketcher.Constraint("Horizontal", 3),
    Sketcher.Constraint("DistanceY", 2, 2, -1, 1, Q("6.0212 mm")),
    Sketcher.Constraint("DistanceX", 1, 1, 1, 2, Q("8.022612 mm")),
    Sketcher.Constraint("DistanceY", 0, 1, 0, 2, Q("8.068387 mm")),
    Sketcher.Constraint("DistanceX", -1, 1, 0, 2, Q("3.488694 mm")),
])
pocket15 = doc.addObject("PartDesign::Pocket", "Pocket014")
body.addObject(pocket15)
pocket15.Profile = sketch18
pocket15.Length = 6
pocket15.Reversed = True

# Sketch on XZ plane
sketch19 = doc.addObject("Sketcher::SketchObject", "Sketch018")
body.addObject(sketch19)
sketch19.AttachmentSupport = (doc.XZ_Plane, [""])
sketch19.MapMode = "FlatFace"
sketch19.AttachmentOffset = App.Placement(V(0, 0, -17.05), App.Rotation())
add_polygon(sketch19, [(3, 16), (3, 24), (12, 24), (12, 16)])  # lines 0-3
sketch19.addConstraint([
    Sketcher.Constraint("Vertical", 0),
    Sketcher.Constraint("Horizontal", 1),
    Sketcher.Constraint("Vertical", 2),
    Sketcher.Constraint("Horizontal", 3),
    Sketcher.Constraint("DistanceY", -1, 1, 2, 2, Q("15.9788 mm")),
    Sketcher.Constraint("DistanceX", 1, 1, 1, 2, Q("8.022612 mm")),
    Sketcher.Constraint("DistanceY", 0, 1, 0, 2, Q("8.068387 mm")),
    Sketcher.Constraint("DistanceX", -1, 1, 0, 2, Q("3.488694 mm")),
])
pocket16 = doc.addObject("PartDesign::Pocket", "Pocket015")
body.addObject(pocket16)
pocket16.Profile = sketch19
pocket16.Length = 6
pocket16.Reversed = True

# Sketch on XZ plane
sketch20 = doc.addObject("Sketcher::SketchObject", "Sketch019")
body.addObject(sketch20)
sketch20.AttachmentSupport = (doc.XZ_Plane, [""])
sketch20.MapMode = "FlatFace"
sketch20.AttachmentOffset = App.Placement(V(0, 0, 0.05), App.Rotation())
sketch20.addGeometry(Part.Circle(V(5.9, -14.8, 0), V(0, 0, 1), 2), False)
sketch20.addConstraint([
    Sketcher.Constraint("Diameter", 0, Q("4 mm")),
    Sketcher.Constraint("DistanceY", 0, 3, -1, 1, Q("14.85 mm")),
    Sketcher.Constraint("DistanceX", -1, 1, 0, 3, Q("5.901924 mm")),
])
pocket17 = doc.addObject("PartDesign::Pocket", "Pocket016")
body.addObject(pocket17)
pocket17.Profile = sketch20
pocket17.Type = "UpToFirst"
pocket17.Reversed = True

# Sketch on XZ plane
sketch21 = doc.addObject("Sketcher::SketchObject", "Sketch020")
body.addObject(sketch21)
sketch21.AttachmentSupport = (doc.XZ_Plane, [""])
sketch21.MapMode = "FlatFace"
sketch21.AttachmentOffset = App.Placement(V(0, 0, 0.05), App.Rotation())
sketch21.addGeometry(Part.Circle(V(11.1, -5.8, 0), V(0, 0, 1), 2), False)
sketch21.addConstraint([
    Sketcher.Constraint("Diameter", 0, Q("4 mm")),
    Sketcher.Constraint("DistanceY", 0, 3, -1, 1, Q("5.85 mm")),
    Sketcher.Constraint("DistanceX", -1, 1, 0, 3, Q("11.098076 mm")),
])
pocket18 = doc.addObject("PartDesign::Pocket", "Pocket017")
body.addObject(pocket18)
pocket18.Profile = sketch21
pocket18.Type = "UpToFirst"
pocket18.Reversed = True

# Sketch on XZ plane
sketch22 = doc.addObject("Sketcher::SketchObject", "Sketch021")
body.addObject(sketch22)
sketch22.AttachmentSupport = (doc.XZ_Plane, [""])
sketch22.MapMode = "FlatFace"
sketch22.AttachmentOffset = App.Placement(V(0, 0, 0.05), App.Rotation())
sketch22.addGeometry(Part.Circle(V(5.9, 3.1, 0), V(0, 0, 1), 2), False)
sketch22.addConstraint([
    Sketcher.Constraint("Diameter", 0, Q("4 mm")),
    Sketcher.Constraint("DistanceY", -1, 1, 0, 3, Q("3.15 mm")),
    Sketcher.Constraint("DistanceX", -1, 1, 0, 3, Q("5.901924 mm")),
])
pocket19 = doc.addObject("PartDesign::Pocket", "Pocket018")
body.addObject(pocket19)
pocket19.Profile = sketch22
pocket19.Type = "UpToFirst"
pocket19.Reversed = True

# Sketch on XZ plane
sketch23 = doc.addObject("Sketcher::SketchObject", "Sketch022")
body.addObject(sketch23)
sketch23.AttachmentSupport = (doc.XZ_Plane, [""])
sketch23.MapMode = "FlatFace"
sketch23.AttachmentOffset = App.Placement(V(0, 0, 0.05), App.Rotation())
sketch23.addGeometry(Part.Circle(V(11.1, 12.2, 0), V(0, 0, 1), 2), False)
sketch23.addConstraint([
    Sketcher.Constraint("Diameter", 0, Q("4 mm")),
    Sketcher.Constraint("DistanceY", -1, 1, 0, 3, Q("12.15 mm")),
    Sketcher.Constraint("DistanceX", -1, 1, 0, 3, Q("11.098076 mm")),
])
pocket20 = doc.addObject("PartDesign::Pocket", "Pocket019")
body.addObject(pocket20)
pocket20.Profile = sketch23
pocket20.Type = "UpToFirst"
pocket20.Reversed = True

# Sketch on XZ plane
sketch24 = doc.addObject("Sketcher::SketchObject", "Sketch023")
body.addObject(sketch24)
sketch24.AttachmentSupport = (doc.XZ_Plane, [""])
sketch24.MapMode = "FlatFace"
sketch24.AttachmentOffset = App.Placement(V(0, 0, 0.05), App.Rotation())
sketch24.addGeometry(Part.Circle(V(5.9, 21.1, 0), V(0, 0, 1), 2), False)
sketch24.addConstraint([
    Sketcher.Constraint("Diameter", 0, Q("4 mm")),
    Sketcher.Constraint("DistanceY", -1, 1, 0, 3, Q("21.15 mm")),
    Sketcher.Constraint("DistanceX", -1, 1, 0, 3, Q("5.901924 mm")),
])
pocket21 = doc.addObject("PartDesign::Pocket", "Pocket020")
body.addObject(pocket21)
pocket21.Profile = sketch24
pocket21.Type = "UpToFirst"
pocket21.Reversed = True

# Sketch on XZ plane
sketch25 = doc.addObject("Sketcher::SketchObject", "Sketch024")
body.addObject(sketch25)
sketch25.AttachmentSupport = (doc.XZ_Plane, [""])
sketch25.MapMode = "FlatFace"
sketch25.AttachmentOffset = App.Placement(V(0, 0, 0.05), App.Rotation())
sketch25.addGeometry([
    Part.LineSegment(V(12.1, -19.6, 0), V(6.9, -22.6, 0)),
    Part.ArcOfCircle(Part.Circle(V(5.9, -20.9, 0), V(0, 0, 1), 2), math.radians(120), math.radians(300)),
    Part.LineSegment(V(4.9, -19.1, 0), V(10.1, -16.1, 0)),
    Part.ArcOfCircle(Part.Circle(V(11.1, -17.9, 0), V(0, 0, 1), 2), math.radians(-60), math.radians(120)),
], False)
sketch25.addConstraint([
    Sketcher.Constraint("Tangent", 0, 2, 1, 2),
    Sketcher.Constraint("Tangent", 1, 1, 2, 1),
    Sketcher.Constraint("Tangent", 2, 2, 3, 2),
    Sketcher.Constraint("Tangent", 3, 1, 0, 1),
    Sketcher.Constraint("Equal", 1, 3),
    Sketcher.Constraint("Radius", 1, Q("2 mm")),
    Sketcher.Constraint("Angle", 0, Q("-150 deg")),
    Sketcher.Constraint("Distance", 0, Q("6 mm")),
    Sketcher.Constraint("DistanceY", 1, 3, -1, 1, Q("20.85 mm")),
    Sketcher.Constraint("DistanceX", -1, 1, 1, 3, Q("5.901924 mm")),
])
pocket22 = doc.addObject("PartDesign::Pocket", "Pocket021")
body.addObject(pocket22)
pocket22.Profile = sketch25
pocket22.Type = "UpToFirst"
pocket22.Reversed = True

# Sketch on XZ plane
sketch26 = doc.addObject("Sketcher::SketchObject", "Sketch025")
body.addObject(sketch26)
sketch26.AttachmentSupport = (doc.XZ_Plane, [""])
sketch26.MapMode = "FlatFace"
sketch26.AttachmentOffset = App.Placement(V(0, 0, 0.05), App.Rotation())
sketch26.addGeometry([
    Part.LineSegment(V(10.1, -13.6, 0), V(4.9, -10.6, 0)),
    Part.ArcOfCircle(Part.Circle(V(5.9, -8.8, 0), V(0, 0, 1), 2), math.radians(60), math.radians(240)),
    Part.LineSegment(V(6.9, -7.1, 0), V(12.1, -10.1, 0)),
    Part.ArcOfCircle(Part.Circle(V(11.1, -11.8, 0), V(0, 0, 1), 2), math.radians(-120), math.radians(60)),
], False)
sketch26.addConstraint([
    Sketcher.Constraint("Tangent", 0, 2, 1, 2),
    Sketcher.Constraint("Tangent", 1, 1, 2, 1),
    Sketcher.Constraint("Tangent", 2, 2, 3, 2),
    Sketcher.Constraint("Tangent", 3, 1, 0, 1),
    Sketcher.Constraint("Equal", 1, 3),
    Sketcher.Constraint("Radius", 1, Q("2 mm")),
    Sketcher.Constraint("Angle", 0, Q("150 deg")),
    Sketcher.Constraint("Distance", 0, Q("6 mm")),
    Sketcher.Constraint("DistanceY", 1, 3, -1, 1, Q("8.85 mm")),
    Sketcher.Constraint("DistanceX", -1, 1, 1, 3, Q("5.901924 mm")),
])
pocket23 = doc.addObject("PartDesign::Pocket", "Pocket022")
body.addObject(pocket23)
pocket23.Profile = sketch26
pocket23.Type = "UpToFirst"
pocket23.Reversed = True

# Sketch on XZ plane
sketch27 = doc.addObject("Sketcher::SketchObject", "Sketch026")
body.addObject(sketch27)
sketch27.AttachmentSupport = (doc.XZ_Plane, [""])
sketch27.MapMode = "FlatFace"
sketch27.AttachmentOffset = App.Placement(V(0, 0, 0.05), App.Rotation())
sketch27.addGeometry([
    Part.LineSegment(V(12.1, -1.6, 0), V(6.9, -4.6, 0)),
    Part.ArcOfCircle(Part.Circle(V(5.9, -2.9, 0), V(0, 0, 1), 2), math.radians(120), math.radians(300)),
    Part.LineSegment(V(4.9, -1.1, 0), V(10.1, 1.9, 0)),
    Part.ArcOfCircle(Part.Circle(V(11.1, 0.1, 0), V(0, 0, 1), 2), math.radians(-60), math.radians(120)),
], False)
sketch27.addConstraint([
    Sketcher.Constraint("Tangent", 0, 2, 1, 2),
    Sketcher.Constraint("Tangent", 1, 1, 2, 1),
    Sketcher.Constraint("Tangent", 2, 2, 3, 2),
    Sketcher.Constraint("Tangent", 3, 1, 0, 1),
    Sketcher.Constraint("Equal", 1, 3),
    Sketcher.Constraint("Radius", 1, Q("2 mm")),
    Sketcher.Constraint("Angle", 0, Q("-150 deg")),
    Sketcher.Constraint("Distance", 0, Q("6 mm")),
    Sketcher.Constraint("DistanceY", 1, 3, -1, 1, Q("2.85 mm")),
    Sketcher.Constraint("DistanceX", -1, 1, 1, 3, Q("5.901924 mm")),
])
pocket24 = doc.addObject("PartDesign::Pocket", "Pocket023")
body.addObject(pocket24)
pocket24.Profile = sketch27
pocket24.Type = "UpToFirst"
pocket24.Reversed = True

# Sketch on XZ plane
sketch28 = doc.addObject("Sketcher::SketchObject", "Sketch027")
body.addObject(sketch28)
sketch28.AttachmentSupport = (doc.XZ_Plane, [""])
sketch28.MapMode = "FlatFace"
sketch28.AttachmentOffset = App.Placement(V(0, 0, 0.05), App.Rotation())
sketch28.addGeometry([
    Part.LineSegment(V(10.1, 4.4, 0), V(4.9, 7.4, 0)),
    Part.ArcOfCircle(Part.Circle(V(5.9, 9.2, 0), V(0, 0, 1), 2), math.radians(60), math.radians(240)),
    Part.LineSegment(V(6.9, 10.9, 0), V(12.1, 7.9, 0)),
    Part.ArcOfCircle(Part.Circle(V(11.1, 6.2, 0), V(0, 0, 1), 2), math.radians(-120), math.radians(60)),
], False)
sketch28.addConstraint([
    Sketcher.Constraint("Tangent", 0, 2, 1, 2),
    Sketcher.Constraint("Tangent", 1, 1, 2, 1),
    Sketcher.Constraint("Tangent", 2, 2, 3, 2),
    Sketcher.Constraint("Tangent", 3, 1, 0, 1),
    Sketcher.Constraint("Equal", 1, 3),
    Sketcher.Constraint("Radius", 1, Q("2 mm")),
    Sketcher.Constraint("Angle", 0, Q("150 deg")),
    Sketcher.Constraint("Distance", 0, Q("6 mm")),
    Sketcher.Constraint("DistanceY", -1, 1, 1, 3, Q("9.15 mm")),
    Sketcher.Constraint("DistanceX", -1, 1, 1, 3, Q("5.901924 mm")),
])
pocket25 = doc.addObject("PartDesign::Pocket", "Pocket024")
body.addObject(pocket25)
pocket25.Profile = sketch28
pocket25.Type = "UpToFirst"
pocket25.Reversed = True

# Sketch on XZ plane
sketch29 = doc.addObject("Sketcher::SketchObject", "Sketch028")
body.addObject(sketch29)
sketch29.AttachmentSupport = (doc.XZ_Plane, [""])
sketch29.MapMode = "FlatFace"
sketch29.AttachmentOffset = App.Placement(V(0, 0, 0.05), App.Rotation())
sketch29.addGeometry([
    Part.LineSegment(V(12.1, 16.4, 0), V(6.9, 13.4, 0)),
    Part.ArcOfCircle(Part.Circle(V(5.9, 15.2, 0), V(0, 0, 1), 2), math.radians(120), math.radians(300)),
    Part.LineSegment(V(4.9, 16.9, 0), V(10.1, 19.9, 0)),
    Part.ArcOfCircle(Part.Circle(V(11.1, 18.1, 0), V(0, 0, 1), 2), math.radians(-60), math.radians(120)),
], False)
sketch29.addConstraint([
    Sketcher.Constraint("Tangent", 0, 2, 1, 2),
    Sketcher.Constraint("Tangent", 1, 1, 2, 1),
    Sketcher.Constraint("Tangent", 2, 2, 3, 2),
    Sketcher.Constraint("Tangent", 3, 1, 0, 1),
    Sketcher.Constraint("Equal", 1, 3),
    Sketcher.Constraint("Radius", 1, Q("2 mm")),
    Sketcher.Constraint("Angle", 0, Q("-150 deg")),
    Sketcher.Constraint("Distance", 0, Q("6 mm")),
    Sketcher.Constraint("DistanceY", -1, 1, 1, 3, Q("15.15 mm")),
    Sketcher.Constraint("DistanceX", -1, 1, 1, 3, Q("5.901924 mm")),
])
pocket26 = doc.addObject("PartDesign::Pocket", "Pocket025")
body.addObject(pocket26)
pocket26.Profile = sketch29
pocket26.Type = "UpToFirst"
pocket26.Reversed = True

doc.recompute()
